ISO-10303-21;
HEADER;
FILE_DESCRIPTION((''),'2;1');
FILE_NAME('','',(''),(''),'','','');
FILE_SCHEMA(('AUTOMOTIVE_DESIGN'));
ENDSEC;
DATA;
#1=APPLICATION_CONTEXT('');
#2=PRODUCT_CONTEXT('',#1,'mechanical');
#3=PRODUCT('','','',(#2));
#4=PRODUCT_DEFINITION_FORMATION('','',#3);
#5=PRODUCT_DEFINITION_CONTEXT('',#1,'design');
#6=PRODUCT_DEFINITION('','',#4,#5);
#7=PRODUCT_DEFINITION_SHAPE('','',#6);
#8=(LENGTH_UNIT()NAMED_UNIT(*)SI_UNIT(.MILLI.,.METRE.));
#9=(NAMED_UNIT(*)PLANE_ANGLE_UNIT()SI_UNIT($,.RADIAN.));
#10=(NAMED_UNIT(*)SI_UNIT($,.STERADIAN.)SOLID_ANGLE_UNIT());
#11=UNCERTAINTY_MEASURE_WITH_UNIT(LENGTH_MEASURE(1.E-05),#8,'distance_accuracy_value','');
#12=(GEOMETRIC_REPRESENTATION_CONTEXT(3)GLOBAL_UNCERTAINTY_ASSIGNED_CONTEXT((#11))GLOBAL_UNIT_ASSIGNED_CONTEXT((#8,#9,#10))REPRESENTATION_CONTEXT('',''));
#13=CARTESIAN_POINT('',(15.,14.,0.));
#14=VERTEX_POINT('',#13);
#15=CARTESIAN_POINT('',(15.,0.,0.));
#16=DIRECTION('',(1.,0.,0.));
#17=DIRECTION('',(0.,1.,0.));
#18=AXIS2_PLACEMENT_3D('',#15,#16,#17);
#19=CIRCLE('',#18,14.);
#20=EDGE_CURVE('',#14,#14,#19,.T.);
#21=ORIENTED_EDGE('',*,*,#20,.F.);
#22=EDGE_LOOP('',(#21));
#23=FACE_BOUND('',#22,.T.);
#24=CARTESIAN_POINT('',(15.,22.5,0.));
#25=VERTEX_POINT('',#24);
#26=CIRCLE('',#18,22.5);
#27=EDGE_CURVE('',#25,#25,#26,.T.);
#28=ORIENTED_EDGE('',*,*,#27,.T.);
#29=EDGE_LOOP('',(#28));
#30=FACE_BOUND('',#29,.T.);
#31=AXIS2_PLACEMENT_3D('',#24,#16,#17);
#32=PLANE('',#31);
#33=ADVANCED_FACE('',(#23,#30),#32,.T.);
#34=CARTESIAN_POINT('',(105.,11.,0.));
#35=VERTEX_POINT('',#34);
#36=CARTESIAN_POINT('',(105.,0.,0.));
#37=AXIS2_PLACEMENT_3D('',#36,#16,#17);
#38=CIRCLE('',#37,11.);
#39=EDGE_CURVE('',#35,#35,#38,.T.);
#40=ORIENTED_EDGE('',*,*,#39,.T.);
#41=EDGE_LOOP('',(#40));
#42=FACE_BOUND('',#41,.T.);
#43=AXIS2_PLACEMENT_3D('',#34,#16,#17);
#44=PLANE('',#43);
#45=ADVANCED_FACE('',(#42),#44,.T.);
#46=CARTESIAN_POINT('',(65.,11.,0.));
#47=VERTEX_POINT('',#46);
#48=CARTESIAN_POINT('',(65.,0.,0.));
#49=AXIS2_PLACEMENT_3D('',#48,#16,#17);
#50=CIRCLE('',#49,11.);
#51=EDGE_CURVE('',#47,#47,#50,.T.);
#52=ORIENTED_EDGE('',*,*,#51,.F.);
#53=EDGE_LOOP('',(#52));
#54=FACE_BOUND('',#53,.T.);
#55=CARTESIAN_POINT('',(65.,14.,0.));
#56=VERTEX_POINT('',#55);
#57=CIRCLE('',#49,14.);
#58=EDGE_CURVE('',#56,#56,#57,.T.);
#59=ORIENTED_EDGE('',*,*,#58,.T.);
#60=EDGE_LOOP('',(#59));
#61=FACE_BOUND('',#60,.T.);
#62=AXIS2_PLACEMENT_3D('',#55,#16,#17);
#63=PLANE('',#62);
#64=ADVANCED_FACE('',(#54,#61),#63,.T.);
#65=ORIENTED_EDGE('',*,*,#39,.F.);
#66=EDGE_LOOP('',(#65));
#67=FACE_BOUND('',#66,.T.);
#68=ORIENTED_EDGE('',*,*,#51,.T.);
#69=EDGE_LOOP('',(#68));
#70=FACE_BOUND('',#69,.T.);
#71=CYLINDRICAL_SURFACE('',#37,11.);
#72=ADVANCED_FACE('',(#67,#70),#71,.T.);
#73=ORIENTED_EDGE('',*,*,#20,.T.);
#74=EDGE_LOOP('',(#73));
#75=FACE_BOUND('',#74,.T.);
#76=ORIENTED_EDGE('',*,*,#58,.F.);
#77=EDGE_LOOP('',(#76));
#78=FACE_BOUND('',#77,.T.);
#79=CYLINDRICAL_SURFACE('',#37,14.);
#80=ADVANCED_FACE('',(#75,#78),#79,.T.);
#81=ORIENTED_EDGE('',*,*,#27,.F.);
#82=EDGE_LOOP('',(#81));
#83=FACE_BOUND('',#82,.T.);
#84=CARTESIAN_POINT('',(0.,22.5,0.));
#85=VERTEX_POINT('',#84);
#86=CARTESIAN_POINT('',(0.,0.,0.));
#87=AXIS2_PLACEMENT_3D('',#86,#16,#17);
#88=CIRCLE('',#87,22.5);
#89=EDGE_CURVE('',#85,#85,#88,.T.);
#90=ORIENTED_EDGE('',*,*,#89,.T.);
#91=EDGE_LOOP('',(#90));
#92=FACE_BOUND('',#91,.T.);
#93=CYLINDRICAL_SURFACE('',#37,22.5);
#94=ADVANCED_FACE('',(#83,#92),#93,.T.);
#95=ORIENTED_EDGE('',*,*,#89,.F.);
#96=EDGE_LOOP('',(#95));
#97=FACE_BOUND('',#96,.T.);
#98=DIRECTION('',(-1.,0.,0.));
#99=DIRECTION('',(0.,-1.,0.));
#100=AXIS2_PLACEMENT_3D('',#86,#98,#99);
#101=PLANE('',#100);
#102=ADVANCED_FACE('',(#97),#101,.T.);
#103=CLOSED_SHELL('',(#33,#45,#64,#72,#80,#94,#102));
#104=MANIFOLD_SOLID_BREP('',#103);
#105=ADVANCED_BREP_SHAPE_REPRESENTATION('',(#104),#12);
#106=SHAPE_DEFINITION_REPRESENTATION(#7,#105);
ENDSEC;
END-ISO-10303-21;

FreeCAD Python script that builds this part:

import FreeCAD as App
import Part
import Sketcher
from FreeCAD import Vector


def add_polygon(sketch, points):
    """Adds a closed chain of lines whose ends are joined by coincident constraints."""
    first, n = sketch.GeometryCount, len(points)
    for a, b in zip(points, points[1:] + points[:1]):
        sketch.addGeometry(Part.LineSegment(App.Vector(*a, 0), App.Vector(*b, 0)), False)
    for i in range(n):
        sketch.addConstraint(Sketcher.Constraint("Coincident", first + i, 2, first + (i + 1) % n, 1))

doc = App.newDocument("Part")
params = doc.addObject("Spreadsheet::Sheet", "Params")
for row, (alias, value) in enumerate([
    ("sketch1_width", "105 mm"),
    ("sketch1_width2", "40 mm"),
    ("sketch1_width3", "50 mm"),
    ("sketch1_height", "11 mm"),
    ("sketch1_height2", "3 mm"),
    ("revolution_angle", "360 deg"),
], start=1):
    params.set(f"A{row}", alias)
    params.set(f"B{row}", "=" + value)
    params.setAlias(f"B{row}", alias)

body = doc.addObject("PartDesign::Body", "Body")

sketch1 = body.newObject("Sketcher::SketchObject", "Sketch")
sketch1.AttachmentSupport = (doc.getObject("XY_Plane"), [""])
sketch1.MapMode = "FlatFace"
add_polygon(sketch1, [(0, 22.5), (0, 0), (105, 0), (105, 11), (65, 11), (65, 14), (15, 14), (15, 22.5)])
sketch1.addConstraint([
    Sketcher.Constraint("Vertical", 0),
    Sketcher.Constraint("Horizontal", 1),
    Sketcher.Constraint("Vertical", 2),
    Sketcher.Constraint("Horizontal", 3),
    Sketcher.Constraint("Vertical", 4),
    Sketcher.Constraint("Horizontal", 5),
    Sketcher.Constraint("Vertical", 6),
    Sketcher.Constraint("Horizontal", 7),
    Sketcher.Constraint("Coincident", 0, 2, -1, 1),
    Sketcher.Constraint("DistanceX", 1, 1, 1, 2, 105.0),
    Sketcher.Constraint("DistanceX", 3, 2, 3, 1, 40.0),
    Sketcher.Constraint("DistanceX", 5, 2, 5, 1, 50.0),
    Sketcher.Constraint("DistanceY", 2, 1, 2, 2, 11.0),
    Sketcher.Constraint("DistanceY", 4, 1, 4, 2, 3.0),
    Sketcher.Constraint("DistanceY", 0, 2, 0, 1, 22.5),
])
sketch1.setExpression("Constraints[17]", "Params.sketch1_width")
sketch1.setExpression("Constraints[18]", "Params.sketch1_width2")
sketch1.setExpression("Constraints[19]", "Params.sketch1_width3")
sketch1.setExpression("Constraints[20]", "Params.sketch1_height")
sketch1.setExpression("Constraints[21]", "Params.sketch1_height2")
revolution = body.newObject("PartDesign::Revolution", "Revolution")
revolution.Profile = sketch1
revolution.ReferenceAxis = (sketch1, ["H_Axis"])
revolution.setExpression("Angle", "Params.revolution_angle")

doc.recompute()
